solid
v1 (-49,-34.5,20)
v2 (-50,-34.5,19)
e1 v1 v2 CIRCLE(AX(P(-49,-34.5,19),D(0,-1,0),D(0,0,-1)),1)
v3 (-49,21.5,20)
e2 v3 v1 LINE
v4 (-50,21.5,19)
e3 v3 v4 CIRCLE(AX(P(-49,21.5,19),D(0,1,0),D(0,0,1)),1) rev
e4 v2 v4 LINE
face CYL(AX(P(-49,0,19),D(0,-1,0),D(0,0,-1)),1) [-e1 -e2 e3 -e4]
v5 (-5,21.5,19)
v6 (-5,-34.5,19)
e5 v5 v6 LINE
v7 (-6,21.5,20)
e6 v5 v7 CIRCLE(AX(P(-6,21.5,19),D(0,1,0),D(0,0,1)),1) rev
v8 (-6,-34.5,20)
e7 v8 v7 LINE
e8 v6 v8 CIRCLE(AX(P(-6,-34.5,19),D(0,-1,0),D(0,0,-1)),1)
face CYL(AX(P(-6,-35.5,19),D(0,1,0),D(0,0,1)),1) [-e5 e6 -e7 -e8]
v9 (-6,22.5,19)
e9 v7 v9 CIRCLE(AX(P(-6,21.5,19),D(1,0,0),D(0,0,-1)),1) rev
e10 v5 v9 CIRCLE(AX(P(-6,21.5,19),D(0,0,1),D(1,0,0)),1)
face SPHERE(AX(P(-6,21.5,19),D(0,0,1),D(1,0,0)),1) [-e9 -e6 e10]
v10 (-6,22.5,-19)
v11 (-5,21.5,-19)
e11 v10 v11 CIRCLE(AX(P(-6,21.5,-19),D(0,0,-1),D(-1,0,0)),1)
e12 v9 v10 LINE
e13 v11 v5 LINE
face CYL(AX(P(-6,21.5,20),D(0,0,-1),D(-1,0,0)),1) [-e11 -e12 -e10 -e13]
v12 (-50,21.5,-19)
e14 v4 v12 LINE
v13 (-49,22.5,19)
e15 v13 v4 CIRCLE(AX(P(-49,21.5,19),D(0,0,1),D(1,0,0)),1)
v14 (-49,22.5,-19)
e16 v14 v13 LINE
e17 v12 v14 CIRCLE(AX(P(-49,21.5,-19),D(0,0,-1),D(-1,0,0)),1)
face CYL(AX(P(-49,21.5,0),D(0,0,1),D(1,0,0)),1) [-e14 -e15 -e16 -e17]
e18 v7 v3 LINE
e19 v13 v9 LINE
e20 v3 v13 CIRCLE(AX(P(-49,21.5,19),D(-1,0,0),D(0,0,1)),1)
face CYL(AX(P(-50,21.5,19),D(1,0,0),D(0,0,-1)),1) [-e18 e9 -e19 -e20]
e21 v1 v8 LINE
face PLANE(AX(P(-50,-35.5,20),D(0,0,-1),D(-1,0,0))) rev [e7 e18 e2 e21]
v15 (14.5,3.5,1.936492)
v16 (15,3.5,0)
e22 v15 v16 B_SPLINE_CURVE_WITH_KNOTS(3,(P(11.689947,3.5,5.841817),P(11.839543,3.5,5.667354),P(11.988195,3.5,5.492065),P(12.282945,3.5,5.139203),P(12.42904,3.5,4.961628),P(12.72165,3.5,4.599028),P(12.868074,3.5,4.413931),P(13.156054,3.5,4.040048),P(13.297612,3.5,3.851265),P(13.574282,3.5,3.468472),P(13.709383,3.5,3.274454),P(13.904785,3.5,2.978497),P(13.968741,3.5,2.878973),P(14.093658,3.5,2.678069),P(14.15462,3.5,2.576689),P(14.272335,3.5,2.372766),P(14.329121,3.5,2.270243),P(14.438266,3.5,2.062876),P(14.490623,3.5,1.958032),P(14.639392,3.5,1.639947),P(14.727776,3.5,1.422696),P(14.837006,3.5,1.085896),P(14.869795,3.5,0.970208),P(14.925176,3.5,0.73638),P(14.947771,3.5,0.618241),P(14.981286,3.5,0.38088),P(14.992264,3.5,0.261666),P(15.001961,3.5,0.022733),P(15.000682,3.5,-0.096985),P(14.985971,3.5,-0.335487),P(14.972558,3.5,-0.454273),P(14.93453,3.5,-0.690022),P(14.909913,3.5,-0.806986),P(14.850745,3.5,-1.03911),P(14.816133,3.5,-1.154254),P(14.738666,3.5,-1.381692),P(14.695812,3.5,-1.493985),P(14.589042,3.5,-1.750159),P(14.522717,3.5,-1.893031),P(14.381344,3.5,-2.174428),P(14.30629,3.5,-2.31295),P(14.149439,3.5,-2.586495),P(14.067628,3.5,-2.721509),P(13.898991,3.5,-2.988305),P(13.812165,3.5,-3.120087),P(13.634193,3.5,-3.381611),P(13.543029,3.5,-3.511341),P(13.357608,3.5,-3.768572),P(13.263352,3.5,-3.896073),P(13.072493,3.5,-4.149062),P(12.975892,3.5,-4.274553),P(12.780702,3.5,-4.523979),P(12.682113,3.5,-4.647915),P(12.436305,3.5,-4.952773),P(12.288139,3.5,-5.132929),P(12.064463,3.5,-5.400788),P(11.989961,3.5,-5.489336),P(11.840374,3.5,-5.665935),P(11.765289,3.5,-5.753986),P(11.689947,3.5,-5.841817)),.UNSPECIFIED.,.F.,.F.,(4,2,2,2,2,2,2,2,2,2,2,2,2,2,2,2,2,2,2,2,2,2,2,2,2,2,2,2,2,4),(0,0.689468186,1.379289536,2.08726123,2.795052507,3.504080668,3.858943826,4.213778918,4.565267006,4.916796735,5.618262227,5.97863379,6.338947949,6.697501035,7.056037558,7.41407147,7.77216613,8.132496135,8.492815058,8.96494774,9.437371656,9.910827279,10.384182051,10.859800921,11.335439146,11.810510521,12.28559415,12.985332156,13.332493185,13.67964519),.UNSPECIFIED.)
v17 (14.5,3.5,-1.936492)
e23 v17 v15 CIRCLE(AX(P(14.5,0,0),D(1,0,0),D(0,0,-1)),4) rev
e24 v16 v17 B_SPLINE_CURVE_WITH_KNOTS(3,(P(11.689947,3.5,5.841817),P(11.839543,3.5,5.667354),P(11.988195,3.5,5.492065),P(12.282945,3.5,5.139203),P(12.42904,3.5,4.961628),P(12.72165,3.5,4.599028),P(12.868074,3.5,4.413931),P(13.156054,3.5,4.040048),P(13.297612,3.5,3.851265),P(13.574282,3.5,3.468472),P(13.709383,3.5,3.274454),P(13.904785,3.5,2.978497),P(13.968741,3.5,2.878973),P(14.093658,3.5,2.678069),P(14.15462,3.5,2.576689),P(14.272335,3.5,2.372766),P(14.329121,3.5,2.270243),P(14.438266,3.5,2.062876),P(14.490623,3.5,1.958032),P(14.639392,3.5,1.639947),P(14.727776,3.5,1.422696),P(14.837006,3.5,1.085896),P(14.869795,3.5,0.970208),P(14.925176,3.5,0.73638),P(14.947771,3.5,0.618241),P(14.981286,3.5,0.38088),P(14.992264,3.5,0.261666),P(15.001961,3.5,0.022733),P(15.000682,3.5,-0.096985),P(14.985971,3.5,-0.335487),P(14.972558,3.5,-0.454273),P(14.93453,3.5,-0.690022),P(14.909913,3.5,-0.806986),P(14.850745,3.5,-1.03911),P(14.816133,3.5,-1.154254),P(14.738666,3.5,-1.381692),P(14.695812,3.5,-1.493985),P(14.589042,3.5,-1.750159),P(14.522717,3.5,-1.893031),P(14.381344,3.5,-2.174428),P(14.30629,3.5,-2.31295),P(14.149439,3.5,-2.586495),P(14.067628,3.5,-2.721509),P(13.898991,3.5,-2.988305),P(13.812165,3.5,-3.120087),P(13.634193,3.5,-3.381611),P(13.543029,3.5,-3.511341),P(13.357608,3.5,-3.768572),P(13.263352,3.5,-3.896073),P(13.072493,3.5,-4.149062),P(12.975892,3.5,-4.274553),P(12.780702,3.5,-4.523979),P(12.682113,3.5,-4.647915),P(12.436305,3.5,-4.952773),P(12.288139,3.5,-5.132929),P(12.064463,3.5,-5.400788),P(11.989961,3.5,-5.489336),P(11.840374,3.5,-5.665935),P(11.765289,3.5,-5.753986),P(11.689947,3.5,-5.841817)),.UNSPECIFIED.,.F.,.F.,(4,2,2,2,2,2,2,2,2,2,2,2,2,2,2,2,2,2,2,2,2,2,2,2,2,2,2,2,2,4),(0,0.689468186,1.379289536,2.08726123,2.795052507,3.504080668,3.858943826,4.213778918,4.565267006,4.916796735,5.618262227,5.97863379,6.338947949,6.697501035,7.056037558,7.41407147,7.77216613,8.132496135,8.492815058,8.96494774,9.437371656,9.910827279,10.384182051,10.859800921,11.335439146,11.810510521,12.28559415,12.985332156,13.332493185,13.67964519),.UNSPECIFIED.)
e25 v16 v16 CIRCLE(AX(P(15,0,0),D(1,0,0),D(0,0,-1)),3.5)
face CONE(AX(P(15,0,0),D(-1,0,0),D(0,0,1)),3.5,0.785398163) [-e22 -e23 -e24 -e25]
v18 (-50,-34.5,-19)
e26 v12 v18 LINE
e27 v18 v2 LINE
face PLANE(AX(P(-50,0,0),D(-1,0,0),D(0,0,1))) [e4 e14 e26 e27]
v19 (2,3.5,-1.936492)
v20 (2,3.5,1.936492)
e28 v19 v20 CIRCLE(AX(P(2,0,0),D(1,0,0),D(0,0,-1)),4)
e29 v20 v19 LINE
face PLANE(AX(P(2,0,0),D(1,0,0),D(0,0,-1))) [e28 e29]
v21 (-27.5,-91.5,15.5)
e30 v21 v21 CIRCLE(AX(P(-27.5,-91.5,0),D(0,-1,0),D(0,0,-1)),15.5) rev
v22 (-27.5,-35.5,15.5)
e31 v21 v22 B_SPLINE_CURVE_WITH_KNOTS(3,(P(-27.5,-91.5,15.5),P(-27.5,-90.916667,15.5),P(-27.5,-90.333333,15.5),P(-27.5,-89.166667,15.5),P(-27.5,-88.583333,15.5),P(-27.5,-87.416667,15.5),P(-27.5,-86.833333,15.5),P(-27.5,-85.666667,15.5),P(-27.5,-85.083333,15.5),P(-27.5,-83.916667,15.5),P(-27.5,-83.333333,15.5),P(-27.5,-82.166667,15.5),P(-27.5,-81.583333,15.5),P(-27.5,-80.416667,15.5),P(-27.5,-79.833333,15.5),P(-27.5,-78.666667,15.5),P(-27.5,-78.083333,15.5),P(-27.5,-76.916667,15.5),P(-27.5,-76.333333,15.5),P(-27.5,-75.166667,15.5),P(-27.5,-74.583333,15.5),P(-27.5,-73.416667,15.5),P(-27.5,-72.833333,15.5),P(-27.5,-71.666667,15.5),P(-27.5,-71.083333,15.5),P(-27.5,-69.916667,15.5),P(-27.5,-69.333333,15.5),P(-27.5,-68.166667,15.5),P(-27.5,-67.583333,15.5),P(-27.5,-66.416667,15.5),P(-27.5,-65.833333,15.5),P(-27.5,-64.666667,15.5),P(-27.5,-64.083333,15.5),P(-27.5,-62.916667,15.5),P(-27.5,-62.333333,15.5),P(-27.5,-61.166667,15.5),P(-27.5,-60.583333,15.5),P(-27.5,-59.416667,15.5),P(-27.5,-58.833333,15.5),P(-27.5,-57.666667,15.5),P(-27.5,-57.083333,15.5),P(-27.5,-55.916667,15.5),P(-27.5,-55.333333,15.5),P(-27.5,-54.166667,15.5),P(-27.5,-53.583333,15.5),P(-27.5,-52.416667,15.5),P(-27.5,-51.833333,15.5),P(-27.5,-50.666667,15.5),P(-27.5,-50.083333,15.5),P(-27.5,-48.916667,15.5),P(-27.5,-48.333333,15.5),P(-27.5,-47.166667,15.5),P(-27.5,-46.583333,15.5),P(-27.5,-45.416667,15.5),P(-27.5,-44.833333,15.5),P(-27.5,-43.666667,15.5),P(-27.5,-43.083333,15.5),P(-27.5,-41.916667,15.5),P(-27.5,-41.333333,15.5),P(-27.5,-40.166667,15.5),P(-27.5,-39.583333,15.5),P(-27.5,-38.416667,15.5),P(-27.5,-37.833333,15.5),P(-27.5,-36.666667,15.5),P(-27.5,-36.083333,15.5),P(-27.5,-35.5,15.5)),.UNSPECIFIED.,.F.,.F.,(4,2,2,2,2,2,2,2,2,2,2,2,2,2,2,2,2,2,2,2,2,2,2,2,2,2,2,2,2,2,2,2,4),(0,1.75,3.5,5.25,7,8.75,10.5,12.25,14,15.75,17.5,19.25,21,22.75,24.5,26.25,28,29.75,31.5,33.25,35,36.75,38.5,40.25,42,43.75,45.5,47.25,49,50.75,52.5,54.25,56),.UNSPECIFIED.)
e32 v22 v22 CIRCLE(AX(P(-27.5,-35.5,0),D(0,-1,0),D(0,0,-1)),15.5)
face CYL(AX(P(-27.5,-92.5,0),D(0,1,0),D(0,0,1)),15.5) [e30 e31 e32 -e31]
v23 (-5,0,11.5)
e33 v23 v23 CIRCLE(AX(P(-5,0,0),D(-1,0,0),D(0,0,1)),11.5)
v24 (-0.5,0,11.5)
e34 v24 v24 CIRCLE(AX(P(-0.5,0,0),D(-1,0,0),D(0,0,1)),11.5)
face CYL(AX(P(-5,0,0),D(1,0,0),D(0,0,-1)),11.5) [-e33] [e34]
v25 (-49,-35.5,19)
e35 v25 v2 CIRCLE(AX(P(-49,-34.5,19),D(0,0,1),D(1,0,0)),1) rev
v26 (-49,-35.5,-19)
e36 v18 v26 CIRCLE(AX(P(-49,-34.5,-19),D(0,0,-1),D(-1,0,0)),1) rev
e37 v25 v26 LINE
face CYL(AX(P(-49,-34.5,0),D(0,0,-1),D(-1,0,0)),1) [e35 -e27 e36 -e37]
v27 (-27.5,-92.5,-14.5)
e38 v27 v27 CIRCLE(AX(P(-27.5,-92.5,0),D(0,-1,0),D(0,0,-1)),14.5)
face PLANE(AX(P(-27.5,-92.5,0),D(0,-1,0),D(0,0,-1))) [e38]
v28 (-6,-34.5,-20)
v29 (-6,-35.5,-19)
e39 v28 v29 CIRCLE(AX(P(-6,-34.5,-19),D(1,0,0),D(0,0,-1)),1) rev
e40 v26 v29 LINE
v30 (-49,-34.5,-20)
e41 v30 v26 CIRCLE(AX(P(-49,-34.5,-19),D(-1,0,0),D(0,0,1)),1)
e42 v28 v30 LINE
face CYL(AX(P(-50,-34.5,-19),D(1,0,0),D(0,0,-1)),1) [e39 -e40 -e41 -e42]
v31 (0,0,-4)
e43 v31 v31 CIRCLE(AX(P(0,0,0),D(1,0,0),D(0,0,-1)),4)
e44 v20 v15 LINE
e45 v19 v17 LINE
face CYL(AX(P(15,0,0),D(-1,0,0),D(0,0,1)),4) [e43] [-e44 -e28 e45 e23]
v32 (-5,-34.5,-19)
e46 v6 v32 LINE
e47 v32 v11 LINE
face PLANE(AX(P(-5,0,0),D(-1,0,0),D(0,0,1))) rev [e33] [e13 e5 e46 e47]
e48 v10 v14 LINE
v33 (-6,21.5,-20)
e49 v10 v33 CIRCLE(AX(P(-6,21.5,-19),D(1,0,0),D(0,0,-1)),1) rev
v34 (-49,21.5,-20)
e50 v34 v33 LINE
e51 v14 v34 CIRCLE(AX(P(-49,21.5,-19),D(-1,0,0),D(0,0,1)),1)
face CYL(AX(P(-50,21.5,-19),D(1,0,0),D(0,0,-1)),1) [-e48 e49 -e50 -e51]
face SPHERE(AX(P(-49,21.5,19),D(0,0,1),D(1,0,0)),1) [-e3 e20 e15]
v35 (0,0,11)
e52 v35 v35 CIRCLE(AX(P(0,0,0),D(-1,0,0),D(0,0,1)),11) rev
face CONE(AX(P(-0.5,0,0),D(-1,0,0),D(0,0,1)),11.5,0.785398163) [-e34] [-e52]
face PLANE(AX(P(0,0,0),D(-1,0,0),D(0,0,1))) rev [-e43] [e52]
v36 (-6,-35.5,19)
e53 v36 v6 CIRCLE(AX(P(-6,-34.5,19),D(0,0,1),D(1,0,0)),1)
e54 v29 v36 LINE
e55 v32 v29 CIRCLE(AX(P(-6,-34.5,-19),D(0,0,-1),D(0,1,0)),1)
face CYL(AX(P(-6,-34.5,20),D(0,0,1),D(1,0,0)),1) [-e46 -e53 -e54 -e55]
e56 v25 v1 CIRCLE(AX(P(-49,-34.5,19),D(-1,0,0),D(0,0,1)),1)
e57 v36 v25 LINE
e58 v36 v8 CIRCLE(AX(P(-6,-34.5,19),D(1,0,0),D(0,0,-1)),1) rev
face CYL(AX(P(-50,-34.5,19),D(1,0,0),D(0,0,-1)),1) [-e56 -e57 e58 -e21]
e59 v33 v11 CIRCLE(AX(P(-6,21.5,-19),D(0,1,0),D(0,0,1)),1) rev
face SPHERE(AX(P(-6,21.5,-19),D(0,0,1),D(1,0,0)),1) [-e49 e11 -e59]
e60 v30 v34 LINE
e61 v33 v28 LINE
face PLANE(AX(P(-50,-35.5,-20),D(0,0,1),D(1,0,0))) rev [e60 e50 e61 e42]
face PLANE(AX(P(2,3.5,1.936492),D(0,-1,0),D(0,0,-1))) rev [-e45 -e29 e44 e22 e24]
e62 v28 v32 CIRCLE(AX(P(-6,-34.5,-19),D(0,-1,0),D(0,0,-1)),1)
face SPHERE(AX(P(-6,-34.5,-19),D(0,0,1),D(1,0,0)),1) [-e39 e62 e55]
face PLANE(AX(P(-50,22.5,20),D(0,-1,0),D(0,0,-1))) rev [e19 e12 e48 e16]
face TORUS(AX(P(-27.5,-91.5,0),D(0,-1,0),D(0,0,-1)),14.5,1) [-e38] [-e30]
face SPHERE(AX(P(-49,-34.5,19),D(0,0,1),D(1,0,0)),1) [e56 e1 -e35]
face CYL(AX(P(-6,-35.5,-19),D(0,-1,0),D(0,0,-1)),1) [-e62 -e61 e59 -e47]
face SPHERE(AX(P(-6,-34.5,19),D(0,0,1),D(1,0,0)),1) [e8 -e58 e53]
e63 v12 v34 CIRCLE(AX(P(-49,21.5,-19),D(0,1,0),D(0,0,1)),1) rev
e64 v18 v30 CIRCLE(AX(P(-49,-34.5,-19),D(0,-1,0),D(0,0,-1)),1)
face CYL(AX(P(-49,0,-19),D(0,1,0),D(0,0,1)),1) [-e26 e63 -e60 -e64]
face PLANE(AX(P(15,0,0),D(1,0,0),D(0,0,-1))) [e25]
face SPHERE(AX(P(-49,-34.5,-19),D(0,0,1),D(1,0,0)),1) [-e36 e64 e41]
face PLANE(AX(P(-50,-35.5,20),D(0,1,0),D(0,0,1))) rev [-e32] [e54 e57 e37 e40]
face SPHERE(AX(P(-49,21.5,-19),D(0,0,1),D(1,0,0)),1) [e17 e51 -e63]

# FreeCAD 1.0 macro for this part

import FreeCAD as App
import Part
import Sketcher
from FreeCAD import Vector
Q = App.Units.Quantity


def edges_at(feature, points):
    """Names of the edges that pass closest to the given points."""
    edges = feature.Shape.Edges
    near = lambda p: min(range(len(edges)), key=lambda i: edges[i].distToShape(Part.Vertex(*p))[0])
    return sorted({f"Edge{near(p) + 1}" for p in points})

doc = App.newDocument("Part")
body = doc.addObject("PartDesign::Body", "Body")

# Sketch on YZ plane
sketch1 = body.newObject("Sketcher::SketchObject", "Sketch")
sketch1.AttachmentSupport = (doc.getObject("YZ_Plane"), [""])
sketch1.MapMode = "FlatFace"
sketch1.addGeometry(Part.Circle(Vector(0, 0, 0), Vector(0, 0, 1), 4), False)
sketch1.addConstraint(Sketcher.Constraint("Coincident", 0, 3, -1, 1))
sketch1.addConstraint(Sketcher.Constraint("Diameter", 0, Q("8 mm")))
pad1 = body.newObject("PartDesign::Pad", "Pad")
pad1.Profile = sketch1
pad1.Length = 15

# Sketch on YZ plane
sketch2 = body.newObject("Sketcher::SketchObject", "Sketch001")
sketch2.AttachmentSupport = (doc.getObject("YZ_Plane"), [""])
sketch2.MapMode = "FlatFace"
sketch2.addGeometry(Part.Circle(Vector(0, 0, 0), Vector(0, 0, 1), 12), False)
sketch2.addConstraint(Sketcher.Constraint("Coincident", 0, 3, -1, 1))
sketch2.addConstraint(Sketcher.Constraint("Diameter", 0, Q("23 mm")))
pad2 = body.newObject("PartDesign::Pad", "Pad001")
pad2.Profile = sketch2
pad2.Length = 5
pad2.Reversed = True

# Sketch on YZ plane
sketch3 = body.newObject("Sketcher::SketchObject", "Sketch002")
sketch3.AttachmentSupport = (doc.getObject("YZ_Plane"), [""])
sketch3.MapMode = "FlatFace"
sketch3.AttachmentOffset = App.Placement(Vector(0, 0, -5), App.Rotation())
sketch3.addGeometry(Part.LineSegment(Vector(22, -20, 0), Vector(-36, -20, 0)), False)
sketch3.addGeometry(Part.LineSegment(Vector(-36, -20, 0), Vector(-36, 20, 0)), False)
sketch3.addGeometry(Part.LineSegment(Vector(-36, 20, 0), Vector(22, 20, 0)), False)
sketch3.addGeometry(Part.LineSegment(Vector(22, 20, 0), Vector(22, -20, 0)), False)
sketch3.addConstraint(Sketcher.Constraint("Coincident", 0, 2, 1, 1))
sketch3.addConstraint(Sketcher.Constraint("Coincident", 1, 2, 2, 1))
sketch3.addConstraint(Sketcher.Constraint("Coincident", 2, 2, 3, 1))
sketch3.addConstraint(Sketcher.Constraint("Coincident", 3, 2, 0, 1))
sketch3.addConstraint(Sketcher.Constraint("Horizontal", 0))
sketch3.addConstraint(Sketcher.Constraint("Vertical", 1))
sketch3.addConstraint(Sketcher.Constraint("Horizontal", 2))
sketch3.addConstraint(Sketcher.Constraint("Vertical", 3))
sketch3.addConstraint(Sketcher.Constraint("DistanceX", 0, 2, 0, 1, Q("58 mm")))
sketch3.addConstraint(Sketcher.Constraint("DistanceY", 1, 1, 1, 2, Q("40 mm")))
sketch3.addConstraint(Sketcher.Constraint("DistanceY", 0, 2, -1, 1, Q("20 mm")))
sketch3.addConstraint(Sketcher.Constraint("DistanceX", 0, 2, -1, 1, Q("35.5 mm")))
pad3 = body.newObject("PartDesign::Pad", "Pad002")
pad3.Profile = sketch3
pad3.Length = 45
pad3.Reversed = True

# Sketch on XZ plane
sketch4 = body.newObject("Sketcher::SketchObject", "Sketch003")
sketch4.AttachmentSupport = (doc.getObject("XZ_Plane"), [""])
sketch4.MapMode = "FlatFace"
sketch4.AttachmentOffset = App.Placement(Vector(0, 0, 35.5), App.Rotation())
sketch4.addGeometry(Part.Circle(Vector(-28, 0, 0), Vector(0, 0, 1), 16), False)
sketch4.addConstraint(Sketcher.Constraint("PointOnObject", 0, 3, -1))
sketch4.addConstraint(Sketcher.Constraint("Diameter", 0, Q("31 mm")))
sketch4.addConstraint(Sketcher.Constraint("DistanceX", 0, 3, -1, 1, Q("27.5 mm")))
pad4 = body.newObject("PartDesign::Pad", "Pad003")
pad4.Profile = sketch4
pad4.Length = 57
doc.recompute()

chamfer = body.newObject("PartDesign::Chamfer", "Chamfer")
chamfer.Base = (pad4, edges_at(pad4, [(15, 0, 4), (0, 0, -11.5)]))
chamfer.Size = 0.5
doc.recompute()

fillet = body.newObject("PartDesign::Fillet", "Fillet")
fillet.Base = (chamfer, edges_at(chamfer, [
    (-27.5, 22.5, -20),
    (-5, -35.5, 0),
    (-27.5, -35.5, -20),
    (-5, -6.5, 20),
    (-27.5, -35.5, 20),
    (-5, 22.5, 0),
    (-27.5, 22.5, 20),
    (-50, -6.5, -20),
    (-50, -35.5, 0),
    (-50, -6.5, 20),
    (-50, 22.5, 0),
    (-27.5, -92.5, -15.5),
    (-5, -6.5, -20),
]))
fillet.Radius = 1

# Sketch on YZ plane
sketch5 = body.newObject("Sketcher::SketchObject", "Sketch004")
sketch5.AttachmentSupport = (doc.getObject("YZ_Plane"), [""])
sketch5.MapMode = "FlatFace"
sketch5.AttachmentOffset = App.Placement(Vector(0, 0, 15), App.Rotation())
sketch5.addGeometry(Part.LineSegment(Vector(11, 1.9, 0), Vector(3.5, 1.9, 0)), False)
sketch5.addGeometry(Part.LineSegment(Vector(3.5, 1.9, 0), Vector(3.5, -1.9, 0)), False)
sketch5.addGeometry(Part.LineSegment(Vector(3.5, -1.9, 0), Vector(11, -1.9, 0)), False)
sketch5.addGeometry(Part.LineSegment(Vector(11, -1.9, 0), Vector(11, 1.9, 0)), False)
sketch5.addConstraint(Sketcher.Constraint("Coincident", 0, 2, 1, 1))
sketch5.addConstraint(Sketcher.Constraint("Coincident", 1, 2, 2, 1))
sketch5.addConstraint(Sketcher.Constraint("Coincident", 2, 2, 3, 1))
sketch5.addConstraint(Sketcher.Constraint("Coincident", 3, 2, 0, 1))
sketch5.addConstraint(Sketcher.Constraint("Horizontal", 0))
sketch5.addConstraint(Sketcher.Constraint("Vertical", 1))
sketch5.addConstraint(Sketcher.Constraint("Horizontal", 2))
sketch5.addConstraint(Sketcher.Constraint("Vertical", 3))
sketch5.addConstraint(Sketcher.Constraint("DistanceX", 0, 2, 0, 1, Q("7.5 mm")))
sketch5.addConstraint(Sketcher.Constraint("DistanceX", -1, 1, 2, 2, Q("11 mm")))
sketch5.addConstraint(Sketcher.Constraint("DistanceY", 1, 2, 1, 1, Q("3.872983 mm")))
sketch5.addConstraint(Sketcher.Constraint("DistanceY", -1, 1, 0, 2, Q("1.936492 mm")))
pocket1 = body.newObject("PartDesign::Pocket", "Pocket")
pocket1.Profile = sketch5
pocket1.Length = 13

doc.recompute()
